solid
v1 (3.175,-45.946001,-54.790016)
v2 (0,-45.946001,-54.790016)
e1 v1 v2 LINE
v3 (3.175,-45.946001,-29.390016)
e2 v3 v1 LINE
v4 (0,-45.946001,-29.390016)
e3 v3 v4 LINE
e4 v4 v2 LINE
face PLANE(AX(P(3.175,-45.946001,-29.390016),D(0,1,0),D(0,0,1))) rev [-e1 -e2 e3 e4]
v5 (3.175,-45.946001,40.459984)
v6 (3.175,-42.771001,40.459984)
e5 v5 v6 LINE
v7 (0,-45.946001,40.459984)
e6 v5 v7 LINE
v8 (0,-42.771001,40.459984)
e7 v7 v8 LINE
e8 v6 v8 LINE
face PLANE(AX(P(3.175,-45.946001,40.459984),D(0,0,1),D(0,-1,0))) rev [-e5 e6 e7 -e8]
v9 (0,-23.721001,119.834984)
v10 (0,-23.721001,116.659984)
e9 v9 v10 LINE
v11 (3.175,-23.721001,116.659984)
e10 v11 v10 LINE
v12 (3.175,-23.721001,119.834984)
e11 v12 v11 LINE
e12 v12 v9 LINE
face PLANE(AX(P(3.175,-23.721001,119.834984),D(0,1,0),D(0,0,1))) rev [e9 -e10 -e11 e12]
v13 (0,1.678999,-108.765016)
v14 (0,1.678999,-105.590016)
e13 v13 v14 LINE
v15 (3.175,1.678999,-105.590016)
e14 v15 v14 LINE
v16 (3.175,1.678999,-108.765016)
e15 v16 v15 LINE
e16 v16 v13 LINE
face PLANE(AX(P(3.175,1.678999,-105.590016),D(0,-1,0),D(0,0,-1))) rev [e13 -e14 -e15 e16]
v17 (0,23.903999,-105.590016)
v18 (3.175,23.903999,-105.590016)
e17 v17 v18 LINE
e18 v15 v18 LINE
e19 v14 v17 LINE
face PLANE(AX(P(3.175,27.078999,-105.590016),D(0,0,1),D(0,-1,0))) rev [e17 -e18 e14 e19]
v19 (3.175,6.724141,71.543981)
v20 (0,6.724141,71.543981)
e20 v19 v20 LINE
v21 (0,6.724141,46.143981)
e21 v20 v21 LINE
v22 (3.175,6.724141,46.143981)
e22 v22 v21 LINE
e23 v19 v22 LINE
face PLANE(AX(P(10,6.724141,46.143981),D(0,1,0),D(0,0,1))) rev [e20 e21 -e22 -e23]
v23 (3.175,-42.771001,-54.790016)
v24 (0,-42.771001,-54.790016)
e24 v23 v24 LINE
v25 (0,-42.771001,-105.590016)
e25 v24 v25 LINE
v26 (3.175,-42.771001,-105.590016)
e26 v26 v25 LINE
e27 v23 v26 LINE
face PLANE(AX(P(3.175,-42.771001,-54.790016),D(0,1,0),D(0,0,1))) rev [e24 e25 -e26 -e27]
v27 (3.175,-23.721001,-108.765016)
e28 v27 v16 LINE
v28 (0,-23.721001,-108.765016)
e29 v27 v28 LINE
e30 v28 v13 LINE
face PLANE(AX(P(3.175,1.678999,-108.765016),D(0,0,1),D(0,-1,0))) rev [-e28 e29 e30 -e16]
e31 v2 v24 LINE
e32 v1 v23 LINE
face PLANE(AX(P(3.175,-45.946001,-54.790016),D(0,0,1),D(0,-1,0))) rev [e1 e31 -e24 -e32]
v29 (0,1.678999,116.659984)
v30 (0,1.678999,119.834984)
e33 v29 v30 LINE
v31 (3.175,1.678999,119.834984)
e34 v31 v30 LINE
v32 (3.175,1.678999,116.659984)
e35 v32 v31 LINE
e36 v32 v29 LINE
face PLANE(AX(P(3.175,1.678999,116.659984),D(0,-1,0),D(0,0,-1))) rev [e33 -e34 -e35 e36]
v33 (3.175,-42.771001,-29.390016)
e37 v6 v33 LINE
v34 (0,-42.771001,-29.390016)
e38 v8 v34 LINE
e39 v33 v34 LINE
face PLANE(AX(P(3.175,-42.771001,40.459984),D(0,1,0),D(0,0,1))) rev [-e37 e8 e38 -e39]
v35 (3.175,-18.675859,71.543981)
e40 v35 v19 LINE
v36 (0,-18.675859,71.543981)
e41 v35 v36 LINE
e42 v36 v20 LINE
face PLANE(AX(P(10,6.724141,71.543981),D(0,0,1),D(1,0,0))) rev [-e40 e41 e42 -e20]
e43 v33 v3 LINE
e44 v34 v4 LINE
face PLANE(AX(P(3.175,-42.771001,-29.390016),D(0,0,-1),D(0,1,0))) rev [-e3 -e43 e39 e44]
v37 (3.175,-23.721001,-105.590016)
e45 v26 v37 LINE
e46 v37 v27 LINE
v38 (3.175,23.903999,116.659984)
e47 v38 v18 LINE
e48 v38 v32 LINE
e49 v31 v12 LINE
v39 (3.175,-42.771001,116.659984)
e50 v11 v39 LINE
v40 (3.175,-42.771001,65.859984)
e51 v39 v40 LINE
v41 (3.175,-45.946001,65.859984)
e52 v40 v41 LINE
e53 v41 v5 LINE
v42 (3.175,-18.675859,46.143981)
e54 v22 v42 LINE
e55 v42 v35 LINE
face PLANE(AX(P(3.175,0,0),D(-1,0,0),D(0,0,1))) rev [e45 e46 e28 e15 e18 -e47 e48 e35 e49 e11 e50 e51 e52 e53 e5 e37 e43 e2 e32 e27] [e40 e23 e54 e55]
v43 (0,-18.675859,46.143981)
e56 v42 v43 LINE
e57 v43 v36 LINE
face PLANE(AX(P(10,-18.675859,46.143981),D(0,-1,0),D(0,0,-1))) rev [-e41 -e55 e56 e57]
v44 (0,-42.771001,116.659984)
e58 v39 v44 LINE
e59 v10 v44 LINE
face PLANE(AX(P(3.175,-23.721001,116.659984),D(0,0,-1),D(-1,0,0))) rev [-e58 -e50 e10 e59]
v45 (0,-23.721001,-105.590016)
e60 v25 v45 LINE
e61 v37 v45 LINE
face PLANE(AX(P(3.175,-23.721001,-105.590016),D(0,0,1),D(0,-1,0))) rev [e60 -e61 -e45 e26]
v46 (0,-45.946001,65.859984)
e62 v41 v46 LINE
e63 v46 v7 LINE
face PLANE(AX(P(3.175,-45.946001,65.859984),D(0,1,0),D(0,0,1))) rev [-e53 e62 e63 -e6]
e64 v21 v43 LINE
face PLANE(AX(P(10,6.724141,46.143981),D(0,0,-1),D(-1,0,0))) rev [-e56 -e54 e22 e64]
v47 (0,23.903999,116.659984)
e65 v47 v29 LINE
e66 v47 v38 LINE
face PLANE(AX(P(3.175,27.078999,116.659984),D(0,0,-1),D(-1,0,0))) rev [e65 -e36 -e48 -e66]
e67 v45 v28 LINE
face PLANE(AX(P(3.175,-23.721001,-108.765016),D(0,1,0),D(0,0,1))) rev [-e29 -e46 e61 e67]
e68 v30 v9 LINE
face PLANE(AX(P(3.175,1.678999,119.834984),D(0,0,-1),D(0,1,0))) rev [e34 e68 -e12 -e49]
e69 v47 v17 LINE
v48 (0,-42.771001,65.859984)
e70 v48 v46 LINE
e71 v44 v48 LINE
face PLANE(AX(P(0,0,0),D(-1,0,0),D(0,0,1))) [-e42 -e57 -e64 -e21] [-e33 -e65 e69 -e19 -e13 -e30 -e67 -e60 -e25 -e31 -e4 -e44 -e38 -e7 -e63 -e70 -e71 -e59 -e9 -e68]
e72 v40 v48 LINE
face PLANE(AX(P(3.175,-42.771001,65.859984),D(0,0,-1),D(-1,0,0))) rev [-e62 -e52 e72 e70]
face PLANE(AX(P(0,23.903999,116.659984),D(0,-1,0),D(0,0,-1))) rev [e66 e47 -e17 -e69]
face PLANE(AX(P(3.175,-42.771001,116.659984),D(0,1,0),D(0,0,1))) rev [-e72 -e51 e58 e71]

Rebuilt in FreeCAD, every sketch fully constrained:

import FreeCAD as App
import Part
import Sketcher
from FreeCAD import Vector
Q = App.Units.Quantity

doc = App.newDocument("Part")
body = doc.addObject("PartDesign::Body", "Body")

sketch1 = body.newObject("Sketcher::SketchObject", "Sketch")
sketch1.AttachmentSupport = (doc.getObject("YZ_Plane"), [""])
sketch1.MapMode = "FlatFace"
sketch1.addGeometry([
    Part.LineSegment(Vector(27.1, 116.7, 0), Vector(1.7, 116.7, 0)),
    Part.LineSegment(Vector(1.7, 116.7, 0), Vector(1.7, 119.8, 0)),
    Part.LineSegment(Vector(1.7, 119.8, 0), Vector(-23.7, 119.8, 0)),
    Part.LineSegment(Vector(-23.7, 119.8, 0), Vector(-23.7, 116.7, 0)),
    Part.LineSegment(Vector(-23.7, 116.7, 0), Vector(-42.8, 116.7, 0)),
    Part.LineSegment(Vector(-42.8, 116.7, 0), Vector(-42.8, 65.9, 0)),
    Part.LineSegment(Vector(-42.8, 65.9, 0), Vector(-45.9, 65.9, 0)),
    Part.LineSegment(Vector(-45.9, 65.9, 0), Vector(-45.9, 40.5, 0)),
    Part.LineSegment(Vector(-45.9, 40.5, 0), Vector(-42.8, 40.5, 0)),
    Part.LineSegment(Vector(-42.8, 40.5, 0), Vector(-42.8, -29.4, 0)),
    Part.LineSegment(Vector(-42.8, -29.4, 0), Vector(-45.9, -29.4, 0)),
    Part.LineSegment(Vector(-45.9, -29.4, 0), Vector(-45.9, -54.8, 0)),
    Part.LineSegment(Vector(-45.9, -54.8, 0), Vector(-42.8, -54.8, 0)),
    Part.LineSegment(Vector(-42.8, -54.8, 0), Vector(-42.8, -105.6, 0)),
    Part.LineSegment(Vector(-42.8, -105.6, 0), Vector(-23.7, -105.6, 0)),
    Part.LineSegment(Vector(-23.7, -105.6, 0), Vector(-23.7, -108.8, 0)),
    Part.LineSegment(Vector(-23.7, -108.8, 0), Vector(1.7, -108.8, 0)),
    Part.LineSegment(Vector(1.7, -108.8, 0), Vector(1.7, -105.6, 0)),
    Part.LineSegment(Vector(1.7, -105.6, 0), Vector(27.1, -105.6, 0)),
    Part.LineSegment(Vector(27.1, -105.6, 0), Vector(27.1, 116.7, 0)),
], False)
sketch1.addConstraint([
    Sketcher.Constraint("Coincident", 0, 2, 1, 1),
    Sketcher.Constraint("Coincident", 1, 2, 2, 1),
    Sketcher.Constraint("Coincident", 2, 2, 3, 1),
    Sketcher.Constraint("Coincident", 3, 2, 4, 1),
    Sketcher.Constraint("Coincident", 4, 2, 5, 1),
    Sketcher.Constraint("Coincident", 5, 2, 6, 1),
    Sketcher.Constraint("Coincident", 6, 2, 7, 1),
    Sketcher.Constraint("Coincident", 7, 2, 8, 1),
    Sketcher.Constraint("Coincident", 8, 2, 9, 1),
    Sketcher.Constraint("Coincident", 9, 2, 10, 1),
    Sketcher.Constraint("Coincident", 10, 2, 11, 1),
    Sketcher.Constraint("Coincident", 11, 2, 12, 1),
    Sketcher.Constraint("Coincident", 12, 2, 13, 1),
    Sketcher.Constraint("Coincident", 13, 2, 14, 1),
    Sketcher.Constraint("Coincident", 14, 2, 15, 1),
    Sketcher.Constraint("Coincident", 15, 2, 16, 1),
    Sketcher.Constraint("Coincident", 16, 2, 17, 1),
    Sketcher.Constraint("Coincident", 17, 2, 18, 1),
    Sketcher.Constraint("Coincident", 18, 2, 19, 1),
    Sketcher.Constraint("Coincident", 19, 2, 0, 1),
    Sketcher.Constraint("Horizontal", 0),
    Sketcher.Constraint("Vertical", 1),
    Sketcher.Constraint("Horizontal", 2),
    Sketcher.Constraint("Vertical", 3),
    Sketcher.Constraint("Horizontal", 4),
    Sketcher.Constraint("Vertical", 5),
    Sketcher.Constraint("Horizontal", 6),
    Sketcher.Constraint("Vertical", 7),
    Sketcher.Constraint("Horizontal", 8),
    Sketcher.Constraint("Vertical", 9),
    Sketcher.Constraint("Horizontal", 10),
    Sketcher.Constraint("Vertical", 11),
    Sketcher.Constraint("Horizontal", 12),
    Sketcher.Constraint("Vertical", 13),
    Sketcher.Constraint("Horizontal", 14),
    Sketcher.Constraint("Vertical", 15),
    Sketcher.Constraint("Horizontal", 16),
    Sketcher.Constraint("Vertical", 17),
    Sketcher.Constraint("Horizontal", 18),
    Sketcher.Constraint("Vertical", 19),
    Sketcher.Constraint("Horizontal", 0, 2, 3, 2),
    Sketcher.Constraint("Horizontal", 14, 2, 17, 2),
    Sketcher.Constraint("Vertical", 5, 2, 8, 2),
    Sketcher.Constraint("Vertical", 7, 2, 10, 2),
    Sketcher.Constraint("Vertical", 9, 2, 12, 2),
    Sketcher.Constraint("Vertical", 3, 2, 14, 2),
    Sketcher.Constraint("Vertical", 1, 2, 16, 2),
    Sketcher.Constraint("Equal", 0, 2),
    Sketcher.Constraint("Equal", 12, 1),
    Sketcher.Constraint("Equal", 18, 7),
    Sketcher.Constraint("Equal", 7, 11),
    Sketcher.Constraint("Equal", 5, 13),
    Sketcher.Constraint("Equal", 3, 15),
    Sketcher.Constraint("DistanceX", 0, 2, 0, 1, Q("1 in")),
    Sketcher.Constraint("DistanceY", 5, 2, 5, 1, Q("2 in")),
    Sketcher.Constraint("DistanceX", 4, 2, 4, 1, Q("0.75 in")),
    Sketcher.Constraint("DistanceY", 9, 2, 9, 1, Q("2.75 in")),
    Sketcher.Constraint("DistanceX", 6, 2, 6, 1, Q("0.125 in")),
    Sketcher.Constraint("DistanceX", -1, 1, 0, 2, 1.678999),
    Sketcher.Constraint("DistanceY", -1, 1, 0, 2, 116.659984),
])
pad1 = body.newObject("PartDesign::Pad", "Pad")
pad1.Profile = sketch1
pad1.Length = Q("0.125 in")

sketch2 = body.newObject("Sketcher::SketchObject", "Sketch001")
sketch2.AttachmentSupport = (doc.getObject("YZ_Plane"), [""])
sketch2.MapMode = "FlatFace"
sketch2.AttachmentOffset = App.Placement(Vector(0, 0, 0.125 * 25.4), App.Rotation())
sketch2.addGeometry([
    Part.LineSegment(Vector(27.1, 116.7, 0), Vector(23.9, 116.7, 0)),
    Part.LineSegment(Vector(23.9, 116.7, 0), Vector(23.9, -105.6, 0)),
    Part.LineSegment(Vector(23.9, -105.6, 0), Vector(27.1, -105.6, 0)),
    Part.LineSegment(Vector(27.1, -105.6, 0), Vector(27.1, 116.7, 0)),
], False)
sketch2.addConstraint([
    Sketcher.Constraint("Coincident", 0, 2, 1, 1),
    Sketcher.Constraint("Coincident", 1, 2, 2, 1),
    Sketcher.Constraint("Coincident", 2, 2, 3, 1),
    Sketcher.Constraint("Coincident", 3, 2, 0, 1),
    Sketcher.Constraint("Horizontal", 0),
    Sketcher.Constraint("Vertical", 1),
    Sketcher.Constraint("Horizontal", 2),
    Sketcher.Constraint("Vertical", 3),
    Sketcher.Constraint("DistanceY", 1, 2, 1, 1, Q("8.75 in")),
    Sketcher.Constraint("DistanceX", 0, 2, 0, 1, Q("0.125 in")),
    Sketcher.Constraint("DistanceX", -1, 1, 0, 2, 23.903999),
    Sketcher.Constraint("DistanceY", -1, 1, 0, 2, 116.659984),
])
pocket1 = body.newObject("PartDesign::Pocket", "Pocket")
pocket1.Profile = sketch2
pocket1.Type = "ThroughAll"

sketch3 = body.newObject("Sketcher::SketchObject", "Sketch002")
sketch3.AttachmentSupport = (doc.getObject("YZ_Plane"), [""])
sketch3.MapMode = "FlatFace"
sketch3.addGeometry([
    Part.LineSegment(Vector(7, 46, 0), Vector(-19, 46, 0)),
    Part.LineSegment(Vector(-19, 46, 0), Vector(-19, 72, 0)),
    Part.LineSegment(Vector(-19, 72, 0), Vector(7, 72, 0)),
    Part.LineSegment(Vector(7, 72, 0), Vector(7, 46, 0)),
], False)
sketch3.addConstraint([
    Sketcher.Constraint("Coincident", 0, 2, 1, 1),
    Sketcher.Constraint("Coincident", 1, 2, 2, 1),
    Sketcher.Constraint("Coincident", 2, 2, 3, 1),
    Sketcher.Constraint("Coincident", 3, 2, 0, 1),
    Sketcher.Constraint("Horizontal", 0),
    Sketcher.Constraint("Vertical", 1),
    Sketcher.Constraint("Horizontal", 2),
    Sketcher.Constraint("Vertical", 3),
    Sketcher.Constraint("Equal", 2, 1),
    Sketcher.Constraint("DistanceX", 0, 2, 0, 1, Q("1 in")),
    Sketcher.Constraint("DistanceX", 0, 2, -1, 1, 18.675859),
    Sketcher.Constraint("DistanceY", -1, 1, 0, 2, 46.143981),
])
pocket2 = body.newObject("PartDesign::Pocket", "Pocket001")
pocket2.Profile = sketch3
pocket2.Length = 10
pocket2.Reversed = True

doc.recompute()
